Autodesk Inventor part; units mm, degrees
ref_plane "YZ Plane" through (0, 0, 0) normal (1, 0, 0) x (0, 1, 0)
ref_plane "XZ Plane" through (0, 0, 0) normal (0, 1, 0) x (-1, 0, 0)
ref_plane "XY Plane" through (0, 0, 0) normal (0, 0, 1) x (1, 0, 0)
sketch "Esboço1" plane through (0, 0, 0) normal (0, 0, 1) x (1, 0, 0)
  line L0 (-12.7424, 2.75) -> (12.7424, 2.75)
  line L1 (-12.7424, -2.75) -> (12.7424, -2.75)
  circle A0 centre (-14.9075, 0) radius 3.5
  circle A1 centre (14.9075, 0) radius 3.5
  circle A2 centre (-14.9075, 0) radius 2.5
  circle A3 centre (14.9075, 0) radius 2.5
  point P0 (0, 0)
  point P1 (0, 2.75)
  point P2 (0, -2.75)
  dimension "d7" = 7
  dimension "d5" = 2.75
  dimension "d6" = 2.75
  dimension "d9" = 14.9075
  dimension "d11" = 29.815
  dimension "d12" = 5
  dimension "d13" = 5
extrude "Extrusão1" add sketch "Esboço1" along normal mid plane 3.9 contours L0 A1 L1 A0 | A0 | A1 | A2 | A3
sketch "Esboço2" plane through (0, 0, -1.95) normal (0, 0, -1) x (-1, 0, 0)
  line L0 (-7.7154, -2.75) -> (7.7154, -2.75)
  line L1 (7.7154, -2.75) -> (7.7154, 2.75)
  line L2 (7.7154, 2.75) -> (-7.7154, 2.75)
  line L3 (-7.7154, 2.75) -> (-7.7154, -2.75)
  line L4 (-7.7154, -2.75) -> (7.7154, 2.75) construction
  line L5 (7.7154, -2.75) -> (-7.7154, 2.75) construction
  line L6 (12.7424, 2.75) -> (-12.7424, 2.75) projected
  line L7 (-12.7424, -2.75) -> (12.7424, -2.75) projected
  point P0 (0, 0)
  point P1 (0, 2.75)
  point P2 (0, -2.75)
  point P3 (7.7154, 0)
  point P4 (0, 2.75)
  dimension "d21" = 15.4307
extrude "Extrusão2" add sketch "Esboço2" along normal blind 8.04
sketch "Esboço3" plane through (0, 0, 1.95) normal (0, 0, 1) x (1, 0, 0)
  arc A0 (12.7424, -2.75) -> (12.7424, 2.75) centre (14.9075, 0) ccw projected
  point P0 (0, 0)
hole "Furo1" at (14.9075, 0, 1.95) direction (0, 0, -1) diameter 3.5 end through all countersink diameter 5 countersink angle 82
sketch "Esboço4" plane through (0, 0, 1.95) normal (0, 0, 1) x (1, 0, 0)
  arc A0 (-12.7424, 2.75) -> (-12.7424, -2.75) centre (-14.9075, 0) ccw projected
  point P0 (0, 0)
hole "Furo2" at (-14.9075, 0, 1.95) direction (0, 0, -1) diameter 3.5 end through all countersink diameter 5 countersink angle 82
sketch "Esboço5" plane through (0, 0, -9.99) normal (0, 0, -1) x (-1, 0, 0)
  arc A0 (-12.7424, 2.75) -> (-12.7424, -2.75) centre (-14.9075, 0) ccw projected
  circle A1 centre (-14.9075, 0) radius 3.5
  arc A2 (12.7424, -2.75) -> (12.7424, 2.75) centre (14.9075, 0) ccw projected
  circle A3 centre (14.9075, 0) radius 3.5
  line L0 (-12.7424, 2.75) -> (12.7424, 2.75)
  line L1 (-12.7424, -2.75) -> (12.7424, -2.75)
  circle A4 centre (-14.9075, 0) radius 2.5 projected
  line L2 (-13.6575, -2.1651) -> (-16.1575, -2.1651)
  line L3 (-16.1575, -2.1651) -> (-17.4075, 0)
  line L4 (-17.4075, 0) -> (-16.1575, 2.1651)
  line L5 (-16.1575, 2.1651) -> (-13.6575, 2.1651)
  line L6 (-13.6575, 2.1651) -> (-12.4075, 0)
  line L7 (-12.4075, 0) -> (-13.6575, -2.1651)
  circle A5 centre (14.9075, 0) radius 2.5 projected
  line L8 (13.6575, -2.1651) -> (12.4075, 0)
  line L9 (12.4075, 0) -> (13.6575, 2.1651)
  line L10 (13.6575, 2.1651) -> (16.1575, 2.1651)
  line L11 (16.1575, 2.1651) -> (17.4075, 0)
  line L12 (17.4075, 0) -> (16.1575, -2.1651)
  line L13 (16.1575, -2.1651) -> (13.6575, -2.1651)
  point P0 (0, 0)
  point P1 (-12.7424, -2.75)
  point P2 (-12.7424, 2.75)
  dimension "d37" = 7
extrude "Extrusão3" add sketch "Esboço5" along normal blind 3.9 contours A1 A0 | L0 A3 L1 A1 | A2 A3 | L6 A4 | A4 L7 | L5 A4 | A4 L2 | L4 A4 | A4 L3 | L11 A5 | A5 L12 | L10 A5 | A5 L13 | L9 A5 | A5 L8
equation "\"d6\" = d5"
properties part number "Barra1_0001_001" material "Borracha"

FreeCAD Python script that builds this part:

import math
import FreeCAD as App
import Part
import Sketcher
Q = App.Units.Quantity

doc = App.newDocument("Part")
params = doc.addObject("Spreadsheet::Sheet", "Params")
for row, (alias, value) in enumerate([
    ("sketch1_radius", "3.5 mm"),
    ("pad1_length", "3.9 mm"),
    ("sketch2_height", "5.5 mm"),
    ("pad2_length", "8.04 mm"),
    ("sketch3_diameter", "3.5 mm"),
    ("hole_diameter", "3.5 mm"),
    ("hole_csink_diameter", "5 mm"),
    ("sketch4_diameter", "3.5 mm"),
    ("hole2_diameter", "3.5 mm"),
    ("hole2_csink_diameter", "5 mm"),
    ("sketch5_radius", "3.5 mm"),
    ("sketch5_width", "2.5 mm"),
    ("pad3_length", "3.9 mm"),
], start=1):
    params.set(f"A{row}", alias)
    params.set(f"B{row}", "=" + value)
    params.setAlias(f"B{row}", alias)

body = doc.addObject("PartDesign::Body", "Body")

# Sketch on XY plane
sketch1 = body.newObject("Sketcher::SketchObject", "Sketch")
sketch1.AttachmentSupport = (doc.getObject("XY_Plane"), [""])
sketch1.MapMode = "FlatFace"
sketch1.addGeometry([
    Part.LineSegment(App.Vector(12.7424, 2.75, 0), App.Vector(-12.7424, 2.75, 0)),
    Part.ArcOfCircle(Part.Circle(App.Vector(-14.9075, 0, 0), App.Vector(0, 0, 1), 3.5), math.radians(51.78632), math.radians(308.21368)),
    Part.LineSegment(App.Vector(-12.7424, -2.75, 0), App.Vector(12.7424, -2.75, 0)),
    Part.ArcOfCircle(Part.Circle(App.Vector(14.9075, 0, 0), App.Vector(0, 0, 1), 3.5), math.radians(-128.21368), math.radians(128.21368)),
], False)
sketch1.addConstraint([
    Sketcher.Constraint("Coincident", 0, 2, 1, 1),
    Sketcher.Constraint("Coincident", 1, 2, 2, 1),
    Sketcher.Constraint("Coincident", 2, 2, 3, 1),
    Sketcher.Constraint("Coincident", 3, 2, 0, 1),
    Sketcher.Constraint("Horizontal", 0),
    Sketcher.Constraint("Horizontal", 2),
    Sketcher.Constraint("Equal", 1, 3),
    Sketcher.Constraint("Symmetric", 1, 3, 3, 3, -1, 1),
    Sketcher.Constraint("Symmetric", 0, 2, 1, 2, -1),
    Sketcher.Constraint("Radius", 1, 3.5),
    Sketcher.Constraint("DistanceY", -1, 1, 0, 2, 2.75),
    Sketcher.Constraint("DistanceX", 1, 3, 3, 3, 29.815),
])
sketch1.setExpression("Constraints[9]", "Params.sketch1_radius")
pad1 = body.newObject("PartDesign::Pad", "Pad")
pad1.Profile = sketch1
pad1.setExpression("Length", "Params.pad1_length")
pad1.Midplane = True

# Sketch on XY plane
sketch2 = body.newObject("Sketcher::SketchObject", "Sketch001")
sketch2.AttachmentSupport = (doc.getObject("XY_Plane"), [""])
sketch2.MapMode = "FlatFace"
sketch2.AttachmentOffset = App.Placement(App.Vector(0, 0, -1.95), App.Rotation())
sketch2.addGeometry([
    Part.LineSegment(App.Vector(7.7154, 2.75, 0), App.Vector(7.7154, -2.75, 0)),
    Part.LineSegment(App.Vector(7.7154, -2.75, 0), App.Vector(-7.7154, -2.75, 0)),
    Part.LineSegment(App.Vector(-7.7154, -2.75, 0), App.Vector(-7.7154, 2.75, 0)),
    Part.LineSegment(App.Vector(-7.7154, 2.75, 0), App.Vector(7.7154, 2.75, 0)),
], False)
sketch2.addConstraint([
    Sketcher.Constraint("Coincident", 0, 2, 1, 1),
    Sketcher.Constraint("Coincident", 1, 2, 2, 1),
    Sketcher.Constraint("Coincident", 2, 2, 3, 1),
    Sketcher.Constraint("Coincident", 3, 2, 0, 1),
    Sketcher.Constraint("Vertical", 0),
    Sketcher.Constraint("Horizontal", 1),
    Sketcher.Constraint("Vertical", 2),
    Sketcher.Constraint("Horizontal", 3),
    Sketcher.Constraint("Symmetric", 0, 2, 2, 2, -1, 1),
    Sketcher.Constraint("DistanceX", 1, 2, 1, 1, 15.4308),
    Sketcher.Constraint("DistanceY", 0, 2, 0, 1, 5.5),
])
sketch2.setExpression("Constraints[10]", "Params.sketch2_height")
pad2 = body.newObject("PartDesign::Pad", "Pad001")
pad2.Profile = sketch2
pad2.setExpression("Length", "Params.pad2_length")
pad2.Reversed = True

# Sketch on XY plane
sketch3 = body.newObject("Sketcher::SketchObject", "Sketch002")
sketch3.AttachmentSupport = (doc.getObject("XY_Plane"), [""])
sketch3.MapMode = "FlatFace"
sketch3.AttachmentOffset = App.Placement(App.Vector(0, 0, 1.95), App.Rotation())
sketch3.addGeometry(Part.Circle(App.Vector(14.9075, 0, 0), App.Vector(0, 0, 1), 1.75), False)
sketch3.addConstraint([
    Sketcher.Constraint("PointOnObject", 0, 3, -1),
    Sketcher.Constraint("Diameter", 0, 3.5),
    Sketcher.Constraint("DistanceX", -1, 1, 0, 3, 14.9075),
])
sketch3.setExpression("Constraints[1]", "Params.sketch3_diameter")
doc.recompute()
hole = body.newObject("PartDesign::Hole", "Hole")
hole.Profile = sketch3
hole.ThreadType = "None"
hole.setExpression("Diameter", "Params.hole_diameter")
hole.DepthType = "ThroughAll"
hole.HoleCutType = "Countersink"
hole.setExpression("HoleCutDiameter", "Params.hole_csink_diameter")
hole.HoleCutCountersinkAngle = 82

# Sketch on XY plane
sketch4 = body.newObject("Sketcher::SketchObject", "Sketch003")
sketch4.AttachmentSupport = (doc.getObject("XY_Plane"), [""])
sketch4.MapMode = "FlatFace"
sketch4.AttachmentOffset = App.Placement(App.Vector(0, 0, 1.95), App.Rotation())
sketch4.addGeometry(Part.Circle(App.Vector(-14.9075, 0, 0), App.Vector(0, 0, 1), 1.75), False)
sketch4.addConstraint([
    Sketcher.Constraint("PointOnObject", 0, 3, -1),
    Sketcher.Constraint("Diameter", 0, 3.5),
    Sketcher.Constraint("DistanceX", 0, 3, -1, 1, 14.9075),
])
sketch4.setExpression("Constraints[1]", "Params.sketch4_diameter")
doc.recompute()
hole2 = body.newObject("PartDesign::Hole", "Hole001")
hole2.Profile = sketch4
hole2.ThreadType = "None"
hole2.setExpression("Diameter", "Params.hole2_diameter")
hole2.DepthType = "ThroughAll"
hole2.HoleCutType = "Countersink"
hole2.setExpression("HoleCutDiameter", "Params.hole2_csink_diameter")
hole2.HoleCutCountersinkAngle = 82

# Sketch on XY plane
sketch5 = body.newObject("Sketcher::SketchObject", "Sketch004")
sketch5.AttachmentSupport = (doc.getObject("XY_Plane"), [""])
sketch5.MapMode = "FlatFace"
sketch5.AttachmentOffset = App.Placement(App.Vector(0, 0, -9.99), App.Rotation())
sketch5.addGeometry([
    Part.ArcOfCircle(Part.Circle(App.Vector(14.9075, 0, 0), App.Vector(0, 0, 1), 3.500023), math.radians(-128.21368), math.radians(128.21368)),  # 0
    Part.LineSegment(App.Vector(12.7424, -2.75, 0), App.Vector(-12.7424, -2.75, 0)),  # 1
    Part.ArcOfCircle(Part.Circle(App.Vector(-14.9075, 0, 0), App.Vector(0, 0, 1), 3.500023), math.radians(51.78632), math.radians(308.21368)),  # 2
    Part.LineSegment(App.Vector(-12.7424, 2.75, 0), App.Vector(12.7424, 2.75, 0)),  # 3
    Part.LineSegment(App.Vector(13.6575, 2.1651, 0), App.Vector(12.4075, 0, 0)),  # 4
    Part.LineSegment(App.Vector(12.4075, 0, 0), App.Vector(13.6575, -2.1651, 0)),  # 5
    Part.LineSegment(App.Vector(13.6575, -2.1651, 0), App.Vector(16.1575, -2.1651, 0)),  # 6
    Part.LineSegment(App.Vector(16.1575, -2.1651, 0), App.Vector(17.4075, 0, 0)),  # 7
    Part.LineSegment(App.Vector(17.4075, 0, 0), App.Vector(16.1575, 2.1651, 0)),  # 8
    Part.LineSegment(App.Vector(16.1575, 2.1651, 0), App.Vector(13.6575, 2.1651, 0)),  # 9
    Part.LineSegment(App.Vector(-17.4075, 0, 0), App.Vector(-16.1575, -2.1651, 0)),  # 10
    Part.LineSegment(App.Vector(-16.1575, -2.1651, 0), App.Vector(-13.6575, -2.1651, 0)),  # 11
    Part.LineSegment(App.Vector(-13.6575, -2.1651, 0), App.Vector(-12.4075, 0, 0)),  # 12
    Part.LineSegment(App.Vector(-12.4075, 0, 0), App.Vector(-13.6575, 2.1651, 0)),  # 13
    Part.LineSegment(App.Vector(-13.6575, 2.1651, 0), App.Vector(-16.1575, 2.1651, 0)),  # 14
    Part.LineSegment(App.Vector(-16.1575, 2.1651, 0), App.Vector(-17.4075, 0, 0)),  # 15
], False)
sketch5.addConstraint([
    Sketcher.Constraint("Coincident", 0, 1, 1, 1),
    Sketcher.Constraint("Coincident", 1, 2, 2, 2),
    Sketcher.Constraint("Coincident", 2, 1, 3, 1),
    Sketcher.Constraint("Coincident", 3, 2, 0, 2),
    Sketcher.Constraint("Coincident", 4, 2, 5, 1),
    Sketcher.Constraint("Coincident", 5, 2, 6, 1),
    Sketcher.Constraint("Coincident", 6, 2, 7, 1),
    Sketcher.Constraint("Coincident", 7, 2, 8, 1),
    Sketcher.Constraint("Coincident", 8, 2, 9, 1),
    Sketcher.Constraint("Coincident", 9, 2, 4, 1),
    Sketcher.Constraint("Coincident", 10, 2, 11, 1),
    Sketcher.Constraint("Coincident", 11, 2, 12, 1),
    Sketcher.Constraint("Coincident", 12, 2, 13, 1),
    Sketcher.Constraint("Coincident", 13, 2, 14, 1),
    Sketcher.Constraint("Coincident", 14, 2, 15, 1),
    Sketcher.Constraint("Coincident", 15, 2, 10, 1),
    Sketcher.Constraint("Horizontal", 1),
    Sketcher.Constraint("Horizontal", 3),
    Sketcher.Constraint("Horizontal", 6),
    Sketcher.Constraint("Horizontal", 9),
    Sketcher.Constraint("Horizontal", 11),
    Sketcher.Constraint("Horizontal", 14),
    Sketcher.Constraint("Equal", 0, 2),
    Sketcher.Constraint("Symmetric", 0, 3, 2, 3, -1, 1),
    Sketcher.Constraint("Symmetric", 8, 2, 10, 2, -1, 1),
    Sketcher.Constraint("Symmetric", 4, 2, 12, 2, -1, 1),
    Sketcher.Constraint("Symmetric", 5, 2, 13, 2, -1, 1),
    Sketcher.Constraint("Symmetric", 7, 2, 15, 2, -1, 1),
    Sketcher.Constraint("Symmetric", 6, 2, 10, 2, -2),
    Sketcher.Constraint("Symmetric", 1, 2, 2, 1, -1),
    Sketcher.Constraint("PointOnObject", 4, 2, -1),
    Sketcher.Constraint("PointOnObject", 7, 2, -1),
    Sketcher.Constraint("Parallel", 4, 7),
    Sketcher.Constraint("Parallel", 5, 8),
    Sketcher.Constraint("Parallel", 7, 12),
    Sketcher.Constraint("Parallel", 12, 15),
    Sketcher.Constraint("Radius", 0, 3.5),
    Sketcher.Constraint("Angle", 4, Q("-119.9996 deg")),
    Sketcher.Constraint("DistanceX", 6, 1, 6, 2, 2.5),
    Sketcher.Constraint("DistanceX", 4, 2, 7, 2, 5.0),
    Sketcher.Constraint("DistanceY", 1, 2, 2, 1, 5.5),
    Sketcher.Constraint("DistanceX", 4, 2, 0, 3, 2.5),
    Sketcher.Constraint("DistanceX", 1, 2, 5, 2, 26.4),
])
sketch5.setExpression("Constraints[36]", "Params.sketch5_radius")
sketch5.setExpression("Constraints[38]", "Params.sketch5_width")
pad3 = body.newObject("PartDesign::Pad", "Pad002")
pad3.Profile = sketch5
pad3.setExpression("Length", "Params.pad3_length")
pad3.Reversed = True

doc.recompute()
